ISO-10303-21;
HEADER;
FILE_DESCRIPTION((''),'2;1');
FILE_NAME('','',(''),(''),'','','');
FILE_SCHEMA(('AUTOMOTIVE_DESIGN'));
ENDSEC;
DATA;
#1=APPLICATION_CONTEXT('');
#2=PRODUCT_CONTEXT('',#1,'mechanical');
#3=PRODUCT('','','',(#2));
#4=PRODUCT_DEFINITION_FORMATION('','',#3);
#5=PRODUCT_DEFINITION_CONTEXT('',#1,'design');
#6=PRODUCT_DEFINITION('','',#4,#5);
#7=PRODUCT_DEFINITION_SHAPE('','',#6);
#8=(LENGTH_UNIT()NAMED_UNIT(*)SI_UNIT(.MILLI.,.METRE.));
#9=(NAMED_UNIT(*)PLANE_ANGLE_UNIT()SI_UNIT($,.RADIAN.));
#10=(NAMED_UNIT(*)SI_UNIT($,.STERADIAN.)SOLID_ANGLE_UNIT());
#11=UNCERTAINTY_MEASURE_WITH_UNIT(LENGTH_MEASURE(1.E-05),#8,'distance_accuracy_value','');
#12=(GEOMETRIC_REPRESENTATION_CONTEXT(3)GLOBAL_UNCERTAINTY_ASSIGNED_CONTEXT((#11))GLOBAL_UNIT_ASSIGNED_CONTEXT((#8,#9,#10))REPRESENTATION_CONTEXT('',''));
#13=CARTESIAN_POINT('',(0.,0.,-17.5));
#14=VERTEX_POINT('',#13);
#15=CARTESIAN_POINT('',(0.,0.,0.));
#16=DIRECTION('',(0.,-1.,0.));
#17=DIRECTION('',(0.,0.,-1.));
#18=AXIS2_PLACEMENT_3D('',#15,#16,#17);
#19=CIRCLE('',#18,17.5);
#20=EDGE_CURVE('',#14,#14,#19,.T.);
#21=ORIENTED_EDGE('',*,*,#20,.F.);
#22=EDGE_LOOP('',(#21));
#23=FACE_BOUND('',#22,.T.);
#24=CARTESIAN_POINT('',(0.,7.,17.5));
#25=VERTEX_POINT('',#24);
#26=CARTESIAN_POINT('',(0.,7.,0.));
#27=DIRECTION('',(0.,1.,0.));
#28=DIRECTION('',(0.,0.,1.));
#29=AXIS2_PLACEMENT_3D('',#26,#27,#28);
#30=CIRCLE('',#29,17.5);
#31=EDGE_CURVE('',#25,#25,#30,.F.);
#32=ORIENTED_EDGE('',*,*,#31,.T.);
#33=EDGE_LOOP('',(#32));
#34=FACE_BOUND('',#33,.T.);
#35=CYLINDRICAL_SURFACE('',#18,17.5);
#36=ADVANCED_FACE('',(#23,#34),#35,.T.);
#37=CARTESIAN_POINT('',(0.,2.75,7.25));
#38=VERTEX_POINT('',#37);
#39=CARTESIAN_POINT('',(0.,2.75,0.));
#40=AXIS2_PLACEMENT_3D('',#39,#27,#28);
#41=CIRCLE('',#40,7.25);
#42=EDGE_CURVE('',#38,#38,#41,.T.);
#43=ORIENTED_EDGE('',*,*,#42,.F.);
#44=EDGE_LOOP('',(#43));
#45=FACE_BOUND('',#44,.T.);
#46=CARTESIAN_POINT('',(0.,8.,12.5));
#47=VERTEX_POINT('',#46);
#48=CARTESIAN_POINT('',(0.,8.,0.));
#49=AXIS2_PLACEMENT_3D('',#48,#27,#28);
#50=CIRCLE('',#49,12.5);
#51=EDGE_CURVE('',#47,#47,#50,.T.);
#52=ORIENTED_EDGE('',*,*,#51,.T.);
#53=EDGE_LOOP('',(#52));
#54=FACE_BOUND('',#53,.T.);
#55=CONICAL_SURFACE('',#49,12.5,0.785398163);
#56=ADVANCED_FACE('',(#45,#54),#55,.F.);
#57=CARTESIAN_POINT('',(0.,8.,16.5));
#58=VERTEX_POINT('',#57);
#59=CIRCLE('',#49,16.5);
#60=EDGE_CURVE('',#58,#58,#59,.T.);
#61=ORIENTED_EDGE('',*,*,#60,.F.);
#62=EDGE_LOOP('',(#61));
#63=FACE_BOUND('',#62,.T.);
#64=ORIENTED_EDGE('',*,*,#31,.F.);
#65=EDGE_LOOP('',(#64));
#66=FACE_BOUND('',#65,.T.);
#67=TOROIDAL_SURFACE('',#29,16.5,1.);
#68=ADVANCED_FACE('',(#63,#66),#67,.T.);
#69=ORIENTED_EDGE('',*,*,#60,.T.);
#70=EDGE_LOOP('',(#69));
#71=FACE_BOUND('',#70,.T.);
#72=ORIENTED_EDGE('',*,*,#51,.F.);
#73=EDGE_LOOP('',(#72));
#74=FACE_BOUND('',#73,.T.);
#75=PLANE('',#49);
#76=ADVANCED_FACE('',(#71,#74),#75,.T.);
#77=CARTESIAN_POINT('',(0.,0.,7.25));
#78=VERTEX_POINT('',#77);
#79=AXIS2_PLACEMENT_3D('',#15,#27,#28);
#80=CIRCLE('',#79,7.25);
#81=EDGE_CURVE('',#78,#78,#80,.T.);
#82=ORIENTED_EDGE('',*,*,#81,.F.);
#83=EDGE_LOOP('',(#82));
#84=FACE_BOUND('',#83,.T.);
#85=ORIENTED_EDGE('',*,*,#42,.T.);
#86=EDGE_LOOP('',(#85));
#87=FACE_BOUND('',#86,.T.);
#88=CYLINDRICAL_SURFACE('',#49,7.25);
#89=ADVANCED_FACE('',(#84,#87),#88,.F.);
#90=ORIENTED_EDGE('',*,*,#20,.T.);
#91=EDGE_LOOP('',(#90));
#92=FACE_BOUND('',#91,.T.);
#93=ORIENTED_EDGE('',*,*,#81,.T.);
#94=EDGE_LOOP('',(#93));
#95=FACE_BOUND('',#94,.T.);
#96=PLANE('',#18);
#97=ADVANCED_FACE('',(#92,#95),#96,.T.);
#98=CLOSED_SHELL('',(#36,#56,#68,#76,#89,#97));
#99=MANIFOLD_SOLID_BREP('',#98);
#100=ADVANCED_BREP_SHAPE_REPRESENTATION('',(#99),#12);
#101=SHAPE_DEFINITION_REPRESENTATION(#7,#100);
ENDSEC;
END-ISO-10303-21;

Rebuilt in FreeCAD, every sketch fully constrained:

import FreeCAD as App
import Part
import Sketcher

V = App.Vector
Q = App.Units.Quantity


def edges_at(feature, points):
    """Names of the edges that pass closest to the given points."""
    edges = feature.Shape.Edges
    near = lambda p: min(range(len(edges)), key=lambda i: edges[i].distToShape(Part.Vertex(*p))[0])
    return sorted({f"Edge{near(p) + 1}" for p in points})

doc = App.newDocument("Part")
body = doc.addObject("PartDesign::Body", "Body")

sketch1 = body.newObject("Sketcher::SketchObject", "Sketch")
sketch1.AttachmentSupport = (doc.getObject("XY_Plane"), [""])
sketch1.MapMode = "FlatFace"
sketch1.addGeometry([
    Part.LineSegment(V(0, 8, 0), V(0, 0, 0)),
    Part.LineSegment(V(0, 0, 0), V(18, 0, 0)),
    Part.LineSegment(V(18, 0, 0), V(18, 8, 0)),
    Part.LineSegment(V(18, 8, 0), V(0, 8, 0)),
], False)
sketch1.addConstraint([
    Sketcher.Constraint("Coincident", 0, 2, 1, 1),
    Sketcher.Constraint("Coincident", 1, 2, 2, 1),
    Sketcher.Constraint("Coincident", 2, 2, 3, 1),
    Sketcher.Constraint("Coincident", 3, 2, 0, 1),
    Sketcher.Constraint("Vertical", 0),
    Sketcher.Constraint("Horizontal", 1),
    Sketcher.Constraint("Vertical", 2),
    Sketcher.Constraint("Horizontal", 3),
    Sketcher.Constraint("Coincident", 0, 2, -1, 1),
    Sketcher.Constraint("DistanceY", 0, 2, 0, 1, Q("8 mm")),
    Sketcher.Constraint("DistanceX", 1, 1, 1, 2, Q("17.5 mm")),
])
revolution = body.newObject("PartDesign::Revolution", "Revolution")
revolution.Profile = sketch1
revolution.ReferenceAxis = (sketch1, ["V_Axis"])
revolution.Angle = 360

sketch2 = body.newObject("Sketcher::SketchObject", "Sketch001")
sketch2.AttachmentSupport = (doc.getObject("YZ_Plane"), [""])
sketch2.MapMode = "FlatFace"
sketch2.addGeometry([
    Part.LineSegment(V(0, 0, 0), V(8, 0, 0)),
    Part.LineSegment(V(8, 0, 0), V(8, 12.5, 0)),
    Part.LineSegment(V(8, 12.5, 0), V(2.8, 7.2, 0)),
    Part.LineSegment(V(2.8, 7.2, 0), V(0, 7.2, 0)),
    Part.LineSegment(V(0, 7.2, 0), V(0, 0, 0)),
], False)
sketch2.addConstraint([
    Sketcher.Constraint("Coincident", 0, 2, 1, 1),
    Sketcher.Constraint("Coincident", 1, 2, 2, 1),
    Sketcher.Constraint("Coincident", 2, 2, 3, 1),
    Sketcher.Constraint("Coincident", 3, 2, 4, 1),
    Sketcher.Constraint("Coincident", 4, 2, 0, 1),
    Sketcher.Constraint("Horizontal", 0),
    Sketcher.Constraint("Vertical", 1),
    Sketcher.Constraint("Horizontal", 3),
    Sketcher.Constraint("Vertical", 4),
    Sketcher.Constraint("Coincident", 4, 2, -1, 1),
    Sketcher.Constraint("DistanceX", 0, 1, 0, 2, Q("8 mm")),
    Sketcher.Constraint("Angle", 2, Q("-135 deg")),
    Sketcher.Constraint("DistanceY", 1, 1, 1, 2, Q("12.5 mm")),
    Sketcher.Constraint("DistanceX", 3, 2, 3, 1, Q("2.75 mm")),
])
groove = body.newObject("PartDesign::Groove", "Groove")
groove.Profile = sketch2
groove.ReferenceAxis = (sketch2, ["H_Axis"])
groove.Angle = 360
doc.recompute()

fillet = body.newObject("PartDesign::Fillet", "Fillet")
fillet.Base = (groove, edges_at(groove, [(0, 8, 17.5)]))
fillet.Radius = 1

doc.recompute()
